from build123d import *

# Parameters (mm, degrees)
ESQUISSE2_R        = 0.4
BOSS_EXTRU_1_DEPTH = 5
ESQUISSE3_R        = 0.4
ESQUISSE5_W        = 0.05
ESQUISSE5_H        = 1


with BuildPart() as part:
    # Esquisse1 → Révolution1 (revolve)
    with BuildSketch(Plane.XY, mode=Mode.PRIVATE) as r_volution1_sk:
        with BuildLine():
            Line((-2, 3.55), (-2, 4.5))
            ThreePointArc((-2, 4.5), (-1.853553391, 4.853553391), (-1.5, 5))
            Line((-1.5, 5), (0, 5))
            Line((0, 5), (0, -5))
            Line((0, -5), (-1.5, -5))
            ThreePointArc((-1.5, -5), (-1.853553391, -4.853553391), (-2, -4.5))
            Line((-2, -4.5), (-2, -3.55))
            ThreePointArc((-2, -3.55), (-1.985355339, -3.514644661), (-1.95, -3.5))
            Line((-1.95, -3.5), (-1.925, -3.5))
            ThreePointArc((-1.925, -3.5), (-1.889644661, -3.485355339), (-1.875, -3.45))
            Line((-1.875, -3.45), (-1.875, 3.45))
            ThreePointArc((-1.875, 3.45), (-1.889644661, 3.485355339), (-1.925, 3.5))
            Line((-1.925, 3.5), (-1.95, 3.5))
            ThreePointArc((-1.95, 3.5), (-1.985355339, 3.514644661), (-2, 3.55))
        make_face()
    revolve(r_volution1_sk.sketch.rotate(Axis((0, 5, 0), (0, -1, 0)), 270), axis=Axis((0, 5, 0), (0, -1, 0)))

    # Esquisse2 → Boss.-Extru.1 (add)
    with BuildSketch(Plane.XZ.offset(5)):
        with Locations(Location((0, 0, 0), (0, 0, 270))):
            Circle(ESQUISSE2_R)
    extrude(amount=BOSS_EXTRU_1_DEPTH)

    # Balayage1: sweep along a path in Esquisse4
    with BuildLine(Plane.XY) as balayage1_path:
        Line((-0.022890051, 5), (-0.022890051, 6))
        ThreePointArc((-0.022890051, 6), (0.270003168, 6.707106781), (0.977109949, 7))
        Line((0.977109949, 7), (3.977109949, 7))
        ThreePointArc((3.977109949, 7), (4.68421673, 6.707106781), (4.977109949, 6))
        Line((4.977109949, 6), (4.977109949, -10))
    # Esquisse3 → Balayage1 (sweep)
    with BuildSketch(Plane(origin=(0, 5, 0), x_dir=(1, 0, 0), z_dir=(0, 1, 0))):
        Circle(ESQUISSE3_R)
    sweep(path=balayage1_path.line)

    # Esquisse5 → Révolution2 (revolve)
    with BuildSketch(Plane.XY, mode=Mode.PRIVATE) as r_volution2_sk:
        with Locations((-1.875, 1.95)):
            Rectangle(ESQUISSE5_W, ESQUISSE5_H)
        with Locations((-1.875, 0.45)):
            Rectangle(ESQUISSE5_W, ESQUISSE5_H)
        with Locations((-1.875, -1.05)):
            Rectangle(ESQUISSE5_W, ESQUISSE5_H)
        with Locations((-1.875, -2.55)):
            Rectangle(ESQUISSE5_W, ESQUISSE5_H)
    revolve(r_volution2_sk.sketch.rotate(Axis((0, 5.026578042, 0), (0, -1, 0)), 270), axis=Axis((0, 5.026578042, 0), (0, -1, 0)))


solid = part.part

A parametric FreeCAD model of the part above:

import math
import FreeCAD as App
import Part
import Sketcher

V = App.Vector
Q = App.Units.Quantity


def add_polygon(sketch, points):
    """Adds a closed chain of lines whose ends are joined by coincident constraints."""
    first, n = sketch.GeometryCount, len(points)
    for a, b in zip(points, points[1:] + points[:1]):
        sketch.addGeometry(Part.LineSegment(App.Vector(*a, 0), App.Vector(*b, 0)), False)
    for i in range(n):
        sketch.addConstraint(Sketcher.Constraint("Coincident", first + i, 2, first + (i + 1) % n, 1))

doc = App.newDocument("Part")
body = doc.addObject("PartDesign::Body", "Body")

# Sketch on XY plane
sketch1 = body.newObject("Sketcher::SketchObject", "Sketch")
sketch1.AttachmentSupport = (doc.getObject("XY_Plane"), [""])
sketch1.MapMode = "FlatFace"
sketch1.addGeometry([
    Part.LineSegment(V(-2, 4.5, 0), V(-2, 3.55, 0)),  # 0
    Part.ArcOfCircle(Part.Circle(V(-1.95, 3.55, 0), V(0, 0, 1), 0.05), math.radians(180), math.radians(270)),  # 1
    Part.LineSegment(V(-1.95, 3.5, 0), V(-1.925, 3.5, 0)),  # 2
    Part.ArcOfCircle(Part.Circle(V(-1.925, 3.45, 0), V(0, 0, 1), 0.05), math.radians(0), math.radians(90)),  # 3
    Part.LineSegment(V(-1.875, 3.45, 0), V(-1.875, -3.45, 0)),  # 4
    Part.ArcOfCircle(Part.Circle(V(-1.925, -3.45, 0), V(0, 0, 1), 0.05), math.radians(-90), math.radians(0)),  # 5
    Part.LineSegment(V(-1.925, -3.5, 0), V(-1.95, -3.5, 0)),  # 6
    Part.ArcOfCircle(Part.Circle(V(-1.95, -3.55, 0), V(0, 0, 1), 0.05), math.radians(90), math.radians(180)),  # 7
    Part.LineSegment(V(-2, -3.55, 0), V(-2, -4.5, 0)),  # 8
    Part.ArcOfCircle(Part.Circle(V(-1.5, -4.5, 0), V(0, 0, 1), 0.5), math.radians(180), math.radians(270)),  # 9
    Part.LineSegment(V(-1.5, -5, 0), V(0, -5, 0)),  # 10
    Part.LineSegment(V(0, -5, 0), V(0, 5, 0)),  # 11
    Part.LineSegment(V(0, 5, 0), V(-1.5, 5, 0)),  # 12
    Part.ArcOfCircle(Part.Circle(V(-1.5, 4.5, 0), V(0, 0, 1), 0.5), math.radians(90), math.radians(180)),  # 13
], False)
sketch1.addConstraint([
    Sketcher.Constraint("Tangent", 0, 2, 1, 1),
    Sketcher.Constraint("Tangent", 1, 2, 2, 1),
    Sketcher.Constraint("Tangent", 2, 2, 3, 2),
    Sketcher.Constraint("Tangent", 3, 1, 4, 1),
    Sketcher.Constraint("Tangent", 4, 2, 5, 2),
    Sketcher.Constraint("Tangent", 5, 1, 6, 1),
    Sketcher.Constraint("Tangent", 6, 2, 7, 1),
    Sketcher.Constraint("Tangent", 7, 2, 8, 1),
    Sketcher.Constraint("Tangent", 8, 2, 9, 1),
    Sketcher.Constraint("Tangent", 9, 2, 10, 1),
    Sketcher.Constraint("Coincident", 10, 2, 11, 1),
    Sketcher.Constraint("Coincident", 11, 2, 12, 1),
    Sketcher.Constraint("Tangent", 12, 2, 13, 1),
    Sketcher.Constraint("Tangent", 13, 2, 0, 1),
    Sketcher.Constraint("Vertical", 0),
    Sketcher.Constraint("Horizontal", 2),
    Sketcher.Constraint("Vertical", 4),
    Sketcher.Constraint("Horizontal", 6),
    Sketcher.Constraint("Vertical", 8),
    Sketcher.Constraint("Horizontal", 10),
    Sketcher.Constraint("Vertical", 11),
    Sketcher.Constraint("Horizontal", 12),
    Sketcher.Constraint("Equal", 1, 3),
    Sketcher.Constraint("Equal", 3, 5),
    Sketcher.Constraint("Equal", 5, 7),
    Sketcher.Constraint("Equal", 9, 13),
    Sketcher.Constraint("Symmetric", 10, 2, 11, 2, -1, 1),
    Sketcher.Constraint("Symmetric", 1, 3, 7, 3, -1),
    Sketcher.Constraint("Radius", 9, Q("0.5 mm")),
    Sketcher.Constraint("DistanceY", 11, 1, 11, 2, Q("10 mm")),
    Sketcher.Constraint("Radius", 1, Q("0.05 mm")),
    Sketcher.Constraint("DistanceX", 10, 1, 10, 2, Q("1.5 mm")),
    Sketcher.Constraint("DistanceY", 4, 2, 4, 1, Q("6.9 mm")),
    Sketcher.Constraint("DistanceX", 2, 1, 2, 2, Q("0.025 mm")),
])
revolution = body.newObject("PartDesign::Revolution", "Revolution")
revolution.Profile = sketch1
revolution.ReferenceAxis = (sketch1, ["V_Axis"])
revolution.Angle = 360

# Sketch on XZ plane
sketch2 = body.newObject("Sketcher::SketchObject", "Sketch001")
sketch2.AttachmentSupport = (doc.getObject("XZ_Plane"), [""])
sketch2.MapMode = "FlatFace"
sketch2.AttachmentOffset = App.Placement(V(0, 0, 5), App.Rotation())
sketch2.addGeometry(Part.Circle(V(0, 0, 0), V(0, 0, 1), 0.4), False)
sketch2.addConstraint([
    Sketcher.Constraint("Coincident", 0, 3, -1, 1),
    Sketcher.Constraint("Diameter", 0, Q("0.8 mm")),
])
pad1 = body.newObject("PartDesign::Pad", "Pad")
pad1.Profile = sketch2
pad1.Length = 5

# Sketch on XZ plane
sketch3 = body.newObject("Sketcher::SketchObject", "Sketch002")
sketch3.AttachmentSupport = (doc.getObject("XZ_Plane"), [""])
sketch3.MapMode = "FlatFace"
sketch3.AttachmentOffset = App.Placement(V(0, 0, -5), App.Rotation())
sketch3.addGeometry(Part.Circle(V(0, 0, 0), V(0, 0, 1), 0.4), False)
sketch3.addConstraint([
    Sketcher.Constraint("Coincident", 0, 3, -1, 1),
    Sketcher.Constraint("Diameter", 0, Q("0.8 mm")),
])

# Sketch on XY plane
sketch4 = body.newObject("Sketcher::SketchObject", "Sketch003")
sketch4.AttachmentSupport = (doc.getObject("XY_Plane"), [""])
sketch4.MapMode = "FlatFace"
sketch4.addGeometry([
    Part.LineSegment(V(-0.02289, 5, 0), V(-0.02289, 6, 0)),  # 0
    Part.ArcOfCircle(Part.Circle(V(0.97711, 6, 0), V(0, 0, 1), 1), math.radians(90), math.radians(180)),  # 1
    Part.LineSegment(V(0.97711, 7, 0), V(3.97711, 7, 0)),  # 2
    Part.ArcOfCircle(Part.Circle(V(3.97711, 6, 0), V(0, 0, 1), 1), math.radians(0), math.radians(90)),  # 3
    Part.LineSegment(V(4.97711, 6, 0), V(4.97711, -10, 0)),  # 4
], False)
sketch4.addConstraint([
    Sketcher.Constraint("Tangent", 0, 2, 1, 2),
    Sketcher.Constraint("Tangent", 1, 1, 2, 1),
    Sketcher.Constraint("Tangent", 2, 2, 3, 2),
    Sketcher.Constraint("Tangent", 3, 1, 4, 1),
    Sketcher.Constraint("Vertical", 0),
    Sketcher.Constraint("Horizontal", 2),
    Sketcher.Constraint("Vertical", 4),
    Sketcher.Constraint("Equal", 1, 3),
    Sketcher.Constraint("Radius", 1, Q("1 mm")),
    Sketcher.Constraint("DistanceX", 2, 1, 2, 2, Q("3 mm")),
    Sketcher.Constraint("DistanceY", 0, 1, 0, 2, Q("1 mm")),
    Sketcher.Constraint("DistanceY", 4, 2, 4, 1, Q("16 mm")),
    Sketcher.Constraint("DistanceY", -1, 1, 1, 3, Q("6 mm")),
    Sketcher.Constraint("DistanceX", -1, 1, 1, 3, Q("0.97711 mm")),
])
doc.recompute()

additivepipe = body.newObject("PartDesign::AdditivePipe", "AdditivePipe")
additivepipe.Profile = sketch3
additivepipe.Spine = (sketch4, ["Edge1", "Edge2", "Edge3", "Edge4", "Edge5"])

# Sketch on XY plane
sketch5 = body.newObject("Sketcher::SketchObject", "Sketch004")
sketch5.AttachmentSupport = (doc.getObject("XY_Plane"), [""])
sketch5.MapMode = "FlatFace"
add_polygon(sketch5, [(-1.9, 2.45), (-1.9, 1.45), (-1.85, 1.45), (-1.85, 2.45)])  # lines 0-3
add_polygon(sketch5, [(-1.9, 0.95), (-1.9, -0.05), (-1.85, -0.05), (-1.85, 0.95)])  # lines 4-7
add_polygon(sketch5, [(-1.9, -0.55), (-1.9, -1.55), (-1.85, -1.55), (-1.85, -0.55)])  # lines 8-11
add_polygon(sketch5, [(-1.9, -2.05), (-1.9, -3.05), (-1.85, -3.05), (-1.85, -2.05)])  # lines 12-15
sketch5.addConstraint([
    Sketcher.Constraint("Vertical", 0),
    Sketcher.Constraint("Horizontal", 1),
    Sketcher.Constraint("Vertical", 2),
    Sketcher.Constraint("Horizontal", 3),
    Sketcher.Constraint("Vertical", 4),
    Sketcher.Constraint("Horizontal", 5),
    Sketcher.Constraint("Vertical", 6),
    Sketcher.Constraint("Horizontal", 7),
    Sketcher.Constraint("Vertical", 8),
    Sketcher.Constraint("Horizontal", 9),
    Sketcher.Constraint("Vertical", 10),
    Sketcher.Constraint("Horizontal", 11),
    Sketcher.Constraint("Vertical", 12),
    Sketcher.Constraint("Horizontal", 13),
    Sketcher.Constraint("Vertical", 14),
    Sketcher.Constraint("Horizontal", 15),
    Sketcher.Constraint("Vertical", 3, 2, 4, 2),
    Sketcher.Constraint("Vertical", 2, 2, 5, 2),
    Sketcher.Constraint("Vertical", 7, 2, 8, 2),
    Sketcher.Constraint("Vertical", 6, 2, 9, 2),
    Sketcher.Constraint("Vertical", 11, 2, 12, 2),
    Sketcher.Constraint("Vertical", 10, 2, 13, 2),
    Sketcher.Constraint("Equal", 2, 4),
    Sketcher.Constraint("Equal", 6, 8),
    Sketcher.Constraint("Equal", 10, 12),
    Sketcher.Constraint("DistanceY", 0, 2, 0, 1, Q("1 mm")),
    Sketcher.Constraint("DistanceY", 8, 2, 0, 2, Q("3 mm")),
    Sketcher.Constraint("DistanceY", 12, 2, 4, 2, Q("3 mm")),
    Sketcher.Constraint("DistanceX", 1, 1, 1, 2, Q("0.05 mm")),
    Sketcher.Constraint("DistanceX", 0, 2, -1, 1, Q("1.9 mm")),
    Sketcher.Constraint("DistanceY", 4, 2, 0, 2, Q("1.5 mm")),
    Sketcher.Constraint("DistanceY", -1, 1, 0, 2, Q("1.45 mm")),
])
revolution2 = body.newObject("PartDesign::Revolution", "Revolution001")
revolution2.Profile = sketch5
revolution2.ReferenceAxis = (sketch5, ["V_Axis"])
revolution2.Angle = 360

doc.recompute()
